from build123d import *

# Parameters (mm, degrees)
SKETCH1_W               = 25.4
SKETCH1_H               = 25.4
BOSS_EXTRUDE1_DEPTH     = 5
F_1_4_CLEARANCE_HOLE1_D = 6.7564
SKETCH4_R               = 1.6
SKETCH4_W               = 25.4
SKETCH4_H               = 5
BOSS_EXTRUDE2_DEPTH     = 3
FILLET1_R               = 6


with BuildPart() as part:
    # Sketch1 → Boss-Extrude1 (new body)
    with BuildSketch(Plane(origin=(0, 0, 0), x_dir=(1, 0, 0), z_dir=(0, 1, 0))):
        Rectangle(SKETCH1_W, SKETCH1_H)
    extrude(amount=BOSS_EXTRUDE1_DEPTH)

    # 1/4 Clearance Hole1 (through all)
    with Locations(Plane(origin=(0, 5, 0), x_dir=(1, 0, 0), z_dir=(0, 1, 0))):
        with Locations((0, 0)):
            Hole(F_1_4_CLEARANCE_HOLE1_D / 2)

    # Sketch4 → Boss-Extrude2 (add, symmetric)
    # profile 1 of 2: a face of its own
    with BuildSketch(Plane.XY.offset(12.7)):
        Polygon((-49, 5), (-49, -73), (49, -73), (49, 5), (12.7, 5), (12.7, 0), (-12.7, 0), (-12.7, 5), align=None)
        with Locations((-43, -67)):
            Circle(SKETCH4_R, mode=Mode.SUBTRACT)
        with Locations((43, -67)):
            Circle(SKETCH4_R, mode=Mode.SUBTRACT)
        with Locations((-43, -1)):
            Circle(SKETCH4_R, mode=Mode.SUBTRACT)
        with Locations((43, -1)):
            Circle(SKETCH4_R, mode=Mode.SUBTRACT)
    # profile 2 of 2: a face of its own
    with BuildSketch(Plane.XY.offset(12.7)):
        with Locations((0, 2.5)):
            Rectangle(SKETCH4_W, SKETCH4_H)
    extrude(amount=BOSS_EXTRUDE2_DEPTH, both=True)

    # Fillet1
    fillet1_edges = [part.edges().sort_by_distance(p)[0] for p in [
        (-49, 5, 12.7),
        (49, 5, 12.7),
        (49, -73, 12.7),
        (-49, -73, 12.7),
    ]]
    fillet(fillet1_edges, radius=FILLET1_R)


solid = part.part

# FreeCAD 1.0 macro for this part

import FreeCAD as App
import Part
import Sketcher
from FreeCAD import Vector
Q = App.Units.Quantity


def edges_at(feature, points):
    """Names of the edges that pass closest to the given points."""
    edges = feature.Shape.Edges
    near = lambda p: min(range(len(edges)), key=lambda i: edges[i].distToShape(Part.Vertex(*p))[0])
    return sorted({f"Edge{near(p) + 1}" for p in points})


def add_polygon(sketch, points):
    """Adds a closed chain of lines whose ends are joined by coincident constraints."""
    first, n = sketch.GeometryCount, len(points)
    for a, b in zip(points, points[1:] + points[:1]):
        sketch.addGeometry(Part.LineSegment(App.Vector(*a, 0), App.Vector(*b, 0)), False)
    for i in range(n):
        sketch.addConstraint(Sketcher.Constraint("Coincident", first + i, 2, first + (i + 1) % n, 1))

doc = App.newDocument("Part")
params = doc.addObject("Spreadsheet::Sheet", "Params")
for row, (alias, value) in enumerate([
    ("sketch1_width", "25.4 mm"),
    ("pad1_length", "5 mm"),
    ("hole_diameter", "6.7564 mm"),
    ("sketch3_diameter", "3.2 mm"),
    ("sketch3_width", "98 mm"),
    ("sketch3_height", "78 mm"),
    ("pad2_length", "6 mm"),
    ("fillet_radius", "6 mm"),
], start=1):
    params.set(f"A{row}", alias)
    params.set(f"B{row}", "=" + value)
    params.setAlias(f"B{row}", alias)

body = doc.addObject("PartDesign::Body", "Body")

# Sketch on XZ plane
sketch1 = body.newObject("Sketcher::SketchObject", "Sketch")
sketch1.AttachmentSupport = (doc.getObject("XZ_Plane"), [""])
sketch1.MapMode = "FlatFace"
add_polygon(sketch1, [(-13, -13), (-13, 13), (13, 13), (13, -13)])  # lines 0-3
sketch1.addConstraint([
    Sketcher.Constraint("Vertical", 0),
    Sketcher.Constraint("Horizontal", 1),
    Sketcher.Constraint("Vertical", 2),
    Sketcher.Constraint("Horizontal", 3),
    Sketcher.Constraint("Symmetric", 0, 2, 2, 2, -1, 1),
    Sketcher.Constraint("Equal", 3, 0),
    Sketcher.Constraint("DistanceX", 1, 1, 1, 2, Q("25.4 mm")),
])
sketch1.setExpression("Constraints[10]", "Params.sketch1_width")
pad1 = body.newObject("PartDesign::Pad", "Pad")
pad1.Profile = sketch1
pad1.setExpression("Length", "Params.pad1_length")
pad1.Reversed = True

# Sketch on XZ plane
sketch2 = body.newObject("Sketcher::SketchObject", "Sketch001")
sketch2.AttachmentSupport = (doc.getObject("XZ_Plane"), [""])
sketch2.MapMode = "FlatFace"
sketch2.AttachmentOffset = App.Placement(Vector(0, 0, -5), App.Rotation())
sketch2.addGeometry(Part.Circle(Vector(0, 0, 0), Vector(0, 0, 1), 3.4), False)
sketch2.addConstraint([
    Sketcher.Constraint("Coincident", 0, 3, -1, 1),
    Sketcher.Constraint("Diameter", 0, Q("6.7564 mm")),
])
doc.recompute()
hole = body.newObject("PartDesign::Hole", "Hole")
hole.Profile = sketch2
hole.ThreadType = "None"
hole.setExpression("Diameter", "Params.hole_diameter")
hole.DepthType = "ThroughAll"
hole.Reversed = True

# Sketch on XY plane
sketch3 = body.newObject("Sketcher::SketchObject", "Sketch002")
sketch3.AttachmentSupport = (doc.getObject("XY_Plane"), [""])
sketch3.MapMode = "FlatFace"
sketch3.AttachmentOffset = App.Placement(Vector(0, 0, 12.7), App.Rotation())
add_polygon(sketch3, [(-49, 5), (-49, -73), (49, -73), (49, 5)])  # lines 0-3
sketch3.addGeometry(Part.Circle(Vector(-43, -67, 0), Vector(0, 0, 1), 1.6), False)  # 4
sketch3.addGeometry(Part.Circle(Vector(43, -67, 0), Vector(0, 0, 1), 1.6), False)  # 5
sketch3.addGeometry(Part.Circle(Vector(-43, -1, 0), Vector(0, 0, 1), 1.6), False)  # 6
sketch3.addGeometry(Part.Circle(Vector(43, -1, 0), Vector(0, 0, 1), 1.6), False)  # 7
sketch3.addConstraint([
    Sketcher.Constraint("Vertical", 0),
    Sketcher.Constraint("Horizontal", 1),
    Sketcher.Constraint("Vertical", 2),
    Sketcher.Constraint("Horizontal", 3),
    Sketcher.Constraint("Equal", 4, 5),
    Sketcher.Constraint("Equal", 5, 6),
    Sketcher.Constraint("Equal", 6, 7),
    Sketcher.Constraint("Symmetric", 4, 3, 5, 3, -2),
    Sketcher.Constraint("Symmetric", 6, 3, 7, 3, -2),
    Sketcher.Constraint("Vertical", 4, 3, 6, 3),
    Sketcher.Constraint("Diameter", 4, Q("3.2 mm")),
    Sketcher.Constraint("DistanceX", 1, 1, 1, 2, Q("98 mm")),
    Sketcher.Constraint("DistanceY", 0, 2, 0, 1, Q("78 mm")),
    Sketcher.Constraint("DistanceX", 4, 3, -1, 1, Q("43 mm")),
    Sketcher.Constraint("DistanceY", 4, 3, -1, 1, Q("67 mm")),
    Sketcher.Constraint("DistanceY", 6, 3, -1, 1, Q("1 mm")),
    Sketcher.Constraint("DistanceX", 0, 2, -1, 1, Q("49 mm")),
    Sketcher.Constraint("DistanceY", 0, 2, -1, 1, Q("73 mm")),
])
sketch3.setExpression("Constraints[14]", "Params.sketch3_diameter")
sketch3.setExpression("Constraints[15]", "Params.sketch3_width")
sketch3.setExpression("Constraints[16]", "Params.sketch3_height")
pad2 = body.newObject("PartDesign::Pad", "Pad001")
pad2.Profile = sketch3
pad2.setExpression("Length", "Params.pad2_length")
pad2.Midplane = True
doc.recompute()

fillet = body.newObject("PartDesign::Fillet", "Fillet")
fillet.Base = (pad2, edges_at(pad2, [
    (-49, 5, 12.7),
    (49, 5, 12.7),
    (49, -73, 12.7),
    (-49, -73, 12.7),
]))
fillet.setExpression("Radius", "Params.fillet_radius")

doc.recompute()
